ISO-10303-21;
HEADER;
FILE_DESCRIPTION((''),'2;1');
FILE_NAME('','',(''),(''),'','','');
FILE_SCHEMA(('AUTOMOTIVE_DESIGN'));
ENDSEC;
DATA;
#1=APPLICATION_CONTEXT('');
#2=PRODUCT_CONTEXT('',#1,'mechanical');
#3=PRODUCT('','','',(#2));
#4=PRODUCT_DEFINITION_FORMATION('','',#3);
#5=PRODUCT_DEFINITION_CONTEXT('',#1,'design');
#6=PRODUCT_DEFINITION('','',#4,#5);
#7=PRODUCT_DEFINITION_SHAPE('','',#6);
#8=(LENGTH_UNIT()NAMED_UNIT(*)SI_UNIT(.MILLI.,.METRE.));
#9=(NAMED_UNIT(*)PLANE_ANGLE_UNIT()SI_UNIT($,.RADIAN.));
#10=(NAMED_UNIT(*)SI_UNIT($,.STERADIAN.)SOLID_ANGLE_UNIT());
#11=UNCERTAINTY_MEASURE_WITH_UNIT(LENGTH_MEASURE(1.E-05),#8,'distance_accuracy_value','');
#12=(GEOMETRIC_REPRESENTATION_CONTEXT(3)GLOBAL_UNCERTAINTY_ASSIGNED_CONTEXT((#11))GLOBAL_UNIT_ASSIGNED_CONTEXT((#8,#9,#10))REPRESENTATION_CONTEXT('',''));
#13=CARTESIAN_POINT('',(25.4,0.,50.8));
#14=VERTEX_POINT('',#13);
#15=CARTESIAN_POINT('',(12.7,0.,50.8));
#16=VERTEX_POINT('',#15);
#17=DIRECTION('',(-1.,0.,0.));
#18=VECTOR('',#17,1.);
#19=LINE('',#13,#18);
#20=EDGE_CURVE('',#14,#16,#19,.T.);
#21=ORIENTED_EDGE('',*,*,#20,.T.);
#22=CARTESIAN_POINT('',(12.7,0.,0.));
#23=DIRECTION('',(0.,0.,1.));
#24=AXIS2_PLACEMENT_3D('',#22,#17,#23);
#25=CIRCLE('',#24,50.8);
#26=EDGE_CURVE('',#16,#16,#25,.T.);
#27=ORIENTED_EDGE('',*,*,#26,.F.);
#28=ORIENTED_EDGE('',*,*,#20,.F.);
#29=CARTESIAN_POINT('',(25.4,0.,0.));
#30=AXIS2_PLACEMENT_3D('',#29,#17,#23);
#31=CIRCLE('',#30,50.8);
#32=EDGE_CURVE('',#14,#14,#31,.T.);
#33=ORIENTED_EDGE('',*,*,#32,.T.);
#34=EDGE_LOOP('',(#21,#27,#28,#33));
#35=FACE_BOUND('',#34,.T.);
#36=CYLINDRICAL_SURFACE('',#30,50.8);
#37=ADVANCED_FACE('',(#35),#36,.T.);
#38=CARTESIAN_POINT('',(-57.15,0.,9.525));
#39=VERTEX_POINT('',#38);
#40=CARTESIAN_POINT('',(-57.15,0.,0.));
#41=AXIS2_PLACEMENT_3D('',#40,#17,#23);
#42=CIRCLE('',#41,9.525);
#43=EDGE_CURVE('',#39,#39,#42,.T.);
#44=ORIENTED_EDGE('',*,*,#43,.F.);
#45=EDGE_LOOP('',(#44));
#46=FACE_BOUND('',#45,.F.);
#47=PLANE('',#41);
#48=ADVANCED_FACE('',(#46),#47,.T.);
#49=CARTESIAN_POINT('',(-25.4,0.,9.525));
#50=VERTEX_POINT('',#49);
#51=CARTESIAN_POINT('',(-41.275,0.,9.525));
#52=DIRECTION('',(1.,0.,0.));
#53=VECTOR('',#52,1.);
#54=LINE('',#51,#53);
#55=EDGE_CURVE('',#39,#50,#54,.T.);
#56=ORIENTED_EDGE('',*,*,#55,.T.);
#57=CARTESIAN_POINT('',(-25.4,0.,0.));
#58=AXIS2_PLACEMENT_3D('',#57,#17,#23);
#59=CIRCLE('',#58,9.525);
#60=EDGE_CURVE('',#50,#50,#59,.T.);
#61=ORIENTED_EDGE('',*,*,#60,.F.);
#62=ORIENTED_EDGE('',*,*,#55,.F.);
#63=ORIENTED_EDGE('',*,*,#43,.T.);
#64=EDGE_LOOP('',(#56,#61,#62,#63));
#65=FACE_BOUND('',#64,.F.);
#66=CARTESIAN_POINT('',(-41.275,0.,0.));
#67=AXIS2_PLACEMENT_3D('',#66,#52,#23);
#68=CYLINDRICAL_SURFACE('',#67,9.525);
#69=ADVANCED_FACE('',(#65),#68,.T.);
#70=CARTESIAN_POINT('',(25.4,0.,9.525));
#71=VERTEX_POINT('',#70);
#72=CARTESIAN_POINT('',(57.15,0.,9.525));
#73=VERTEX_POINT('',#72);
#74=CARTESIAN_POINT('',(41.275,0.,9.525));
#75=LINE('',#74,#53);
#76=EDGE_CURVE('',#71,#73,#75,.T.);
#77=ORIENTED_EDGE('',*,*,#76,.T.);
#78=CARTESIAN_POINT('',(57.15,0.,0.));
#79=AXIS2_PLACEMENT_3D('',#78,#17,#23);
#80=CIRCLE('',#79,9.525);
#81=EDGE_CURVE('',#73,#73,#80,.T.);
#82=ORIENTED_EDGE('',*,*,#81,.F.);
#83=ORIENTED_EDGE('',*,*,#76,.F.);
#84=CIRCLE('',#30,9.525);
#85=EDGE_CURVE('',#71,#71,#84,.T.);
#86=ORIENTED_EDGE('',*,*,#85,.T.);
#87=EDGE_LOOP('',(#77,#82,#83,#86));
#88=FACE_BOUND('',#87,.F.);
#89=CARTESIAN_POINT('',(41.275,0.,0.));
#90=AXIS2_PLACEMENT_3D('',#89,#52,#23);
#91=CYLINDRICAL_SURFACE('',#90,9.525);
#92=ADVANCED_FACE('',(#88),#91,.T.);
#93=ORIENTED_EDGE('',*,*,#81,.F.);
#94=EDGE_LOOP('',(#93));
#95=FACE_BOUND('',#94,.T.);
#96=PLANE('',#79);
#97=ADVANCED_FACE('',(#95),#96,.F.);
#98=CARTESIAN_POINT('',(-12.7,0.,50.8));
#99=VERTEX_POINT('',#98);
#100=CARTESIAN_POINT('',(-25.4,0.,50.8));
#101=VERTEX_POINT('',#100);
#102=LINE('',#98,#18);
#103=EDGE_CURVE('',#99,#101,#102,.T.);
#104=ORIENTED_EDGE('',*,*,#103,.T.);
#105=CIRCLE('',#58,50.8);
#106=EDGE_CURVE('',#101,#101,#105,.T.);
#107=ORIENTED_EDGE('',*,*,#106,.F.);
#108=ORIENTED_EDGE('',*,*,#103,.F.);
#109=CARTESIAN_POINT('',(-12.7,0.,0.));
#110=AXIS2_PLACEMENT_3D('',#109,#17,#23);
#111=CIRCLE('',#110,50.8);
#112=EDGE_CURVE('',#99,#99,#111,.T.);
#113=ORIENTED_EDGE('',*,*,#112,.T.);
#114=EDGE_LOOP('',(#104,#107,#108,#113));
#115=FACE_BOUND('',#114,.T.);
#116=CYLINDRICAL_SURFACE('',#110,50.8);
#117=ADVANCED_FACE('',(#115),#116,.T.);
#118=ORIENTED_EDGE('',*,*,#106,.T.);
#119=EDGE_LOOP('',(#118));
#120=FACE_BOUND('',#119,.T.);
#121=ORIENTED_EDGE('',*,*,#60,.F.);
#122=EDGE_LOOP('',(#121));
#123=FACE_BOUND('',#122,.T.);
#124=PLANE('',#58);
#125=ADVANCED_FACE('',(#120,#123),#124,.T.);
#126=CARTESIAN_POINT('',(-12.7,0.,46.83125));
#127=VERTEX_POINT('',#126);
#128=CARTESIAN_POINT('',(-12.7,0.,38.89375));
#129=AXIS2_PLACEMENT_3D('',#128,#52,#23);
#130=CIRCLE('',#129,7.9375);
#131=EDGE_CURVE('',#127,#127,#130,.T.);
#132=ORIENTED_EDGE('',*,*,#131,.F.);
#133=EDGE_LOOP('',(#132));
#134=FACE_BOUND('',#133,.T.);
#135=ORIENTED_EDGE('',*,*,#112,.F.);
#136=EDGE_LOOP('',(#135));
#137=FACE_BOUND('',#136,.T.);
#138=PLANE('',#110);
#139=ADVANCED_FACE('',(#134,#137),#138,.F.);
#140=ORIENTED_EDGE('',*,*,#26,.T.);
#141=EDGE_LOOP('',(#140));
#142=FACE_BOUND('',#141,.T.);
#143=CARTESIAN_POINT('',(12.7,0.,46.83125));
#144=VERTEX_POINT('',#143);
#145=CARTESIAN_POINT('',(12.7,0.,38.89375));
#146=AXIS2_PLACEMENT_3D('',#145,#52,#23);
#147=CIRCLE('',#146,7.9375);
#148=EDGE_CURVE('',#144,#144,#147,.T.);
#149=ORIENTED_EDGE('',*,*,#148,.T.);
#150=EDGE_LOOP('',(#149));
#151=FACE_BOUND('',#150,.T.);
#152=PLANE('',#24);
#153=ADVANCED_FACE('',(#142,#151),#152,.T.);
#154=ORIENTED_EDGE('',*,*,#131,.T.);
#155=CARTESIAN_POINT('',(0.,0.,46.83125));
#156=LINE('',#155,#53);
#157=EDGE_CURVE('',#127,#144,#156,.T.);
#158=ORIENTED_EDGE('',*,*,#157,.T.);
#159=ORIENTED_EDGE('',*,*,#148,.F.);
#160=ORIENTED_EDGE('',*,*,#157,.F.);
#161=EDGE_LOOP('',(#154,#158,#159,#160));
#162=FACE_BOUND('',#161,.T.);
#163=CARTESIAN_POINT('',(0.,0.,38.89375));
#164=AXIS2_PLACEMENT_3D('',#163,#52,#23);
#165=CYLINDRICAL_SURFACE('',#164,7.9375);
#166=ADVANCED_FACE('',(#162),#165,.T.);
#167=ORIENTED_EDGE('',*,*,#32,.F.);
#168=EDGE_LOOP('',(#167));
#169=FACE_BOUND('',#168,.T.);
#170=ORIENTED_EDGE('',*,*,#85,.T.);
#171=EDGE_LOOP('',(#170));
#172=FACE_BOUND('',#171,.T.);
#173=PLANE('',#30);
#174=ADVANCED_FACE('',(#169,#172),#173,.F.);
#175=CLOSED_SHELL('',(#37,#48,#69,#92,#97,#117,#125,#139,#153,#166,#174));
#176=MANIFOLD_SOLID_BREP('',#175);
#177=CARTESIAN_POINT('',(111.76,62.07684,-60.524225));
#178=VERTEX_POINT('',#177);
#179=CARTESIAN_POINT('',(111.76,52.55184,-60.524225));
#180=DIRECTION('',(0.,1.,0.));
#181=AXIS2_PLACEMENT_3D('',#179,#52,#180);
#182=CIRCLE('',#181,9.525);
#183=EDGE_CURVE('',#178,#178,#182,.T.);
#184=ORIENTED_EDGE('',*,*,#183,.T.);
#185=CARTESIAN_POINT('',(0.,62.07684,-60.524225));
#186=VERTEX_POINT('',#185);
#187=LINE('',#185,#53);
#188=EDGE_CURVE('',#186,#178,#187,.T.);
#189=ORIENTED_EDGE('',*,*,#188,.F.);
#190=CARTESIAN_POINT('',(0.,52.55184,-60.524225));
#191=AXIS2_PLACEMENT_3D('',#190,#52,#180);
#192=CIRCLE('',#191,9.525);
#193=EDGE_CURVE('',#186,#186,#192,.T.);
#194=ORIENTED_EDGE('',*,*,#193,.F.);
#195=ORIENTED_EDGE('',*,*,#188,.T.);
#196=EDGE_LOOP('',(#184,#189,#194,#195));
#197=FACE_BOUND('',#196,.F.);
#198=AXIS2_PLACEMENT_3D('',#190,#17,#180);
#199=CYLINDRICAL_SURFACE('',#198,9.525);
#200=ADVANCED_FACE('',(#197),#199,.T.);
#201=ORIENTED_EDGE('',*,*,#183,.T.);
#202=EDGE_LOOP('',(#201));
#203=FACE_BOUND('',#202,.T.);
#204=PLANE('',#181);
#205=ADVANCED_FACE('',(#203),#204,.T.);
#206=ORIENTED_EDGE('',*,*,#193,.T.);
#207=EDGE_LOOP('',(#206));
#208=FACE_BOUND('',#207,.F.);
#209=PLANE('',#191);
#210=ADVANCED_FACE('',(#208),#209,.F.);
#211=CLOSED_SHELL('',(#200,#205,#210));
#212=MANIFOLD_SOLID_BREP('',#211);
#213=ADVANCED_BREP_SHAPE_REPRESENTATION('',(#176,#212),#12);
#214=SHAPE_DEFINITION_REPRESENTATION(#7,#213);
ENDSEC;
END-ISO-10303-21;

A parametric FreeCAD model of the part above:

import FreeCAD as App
import Part
import Sketcher
Q = App.Units.Quantity

doc = App.newDocument("Part")
body = doc.addObject("PartDesign::Body", "Body")

sketch1 = doc.addObject("Sketcher::SketchObject", "Sketch")
body.addObject(sketch1)
sketch1.AttachmentSupport = (doc.XZ_Plane, [""])
sketch1.MapMode = "FlatFace"
sketch1.addGeometry([
    Part.LineSegment(App.Vector(-57, 10, 0), App.Vector(-57, 0, 0)),
    Part.LineSegment(App.Vector(-57, 0, 0), App.Vector(-13, 0, 0)),
    Part.LineSegment(App.Vector(-13, 0, 0), App.Vector(-13, 51, 0)),
    Part.LineSegment(App.Vector(-13, 51, 0), App.Vector(-25, 51, 0)),
    Part.LineSegment(App.Vector(-25, 51, 0), App.Vector(-25, 10, 0)),
    Part.LineSegment(App.Vector(-25, 10, 0), App.Vector(-57, 10, 0)),
], False)
sketch1.addConstraint([
    Sketcher.Constraint("Coincident", 0, 2, 1, 1),
    Sketcher.Constraint("Coincident", 1, 2, 2, 1),
    Sketcher.Constraint("Coincident", 2, 2, 3, 1),
    Sketcher.Constraint("Coincident", 3, 2, 4, 1),
    Sketcher.Constraint("Coincident", 4, 2, 5, 1),
    Sketcher.Constraint("Coincident", 5, 2, 0, 1),
    Sketcher.Constraint("Vertical", 0),
    Sketcher.Constraint("Horizontal", 1),
    Sketcher.Constraint("Vertical", 2),
    Sketcher.Constraint("Horizontal", 3),
    Sketcher.Constraint("Vertical", 4),
    Sketcher.Constraint("Horizontal", 5),
    Sketcher.Constraint("PointOnObject", 0, 2, -1),
    Sketcher.Constraint("DistanceY", 2, 1, 2, 2, Q("2 in")),
    Sketcher.Constraint("DistanceX", 3, 2, 3, 1, Q("0.5 in")),
    Sketcher.Constraint("DistanceX", 3, 2, -1, 1, Q("1 in")),
    Sketcher.Constraint("DistanceX", 1, 1, 1, 2, Q("1.75 in")),
    Sketcher.Constraint("DistanceY", 0, 2, 0, 1, Q("0.375 in")),
])
revolution = doc.addObject("PartDesign::Revolution", "Revolution")
body.addObject(revolution)
revolution.Profile = sketch1
revolution.ReferenceAxis = (sketch1, ["H_Axis"])
revolution.Angle = 360
body2 = doc.addObject("PartDesign::Body", "Body001")

sketch2 = doc.addObject("Sketcher::SketchObject", "Sketch001")
body2.addObject(sketch2)
sketch2.AttachmentSupport = (doc.getObject("XZ_Plane001"), [""])
sketch2.MapMode = "FlatFace"
sketch2.addGeometry([
    Part.LineSegment(App.Vector(13, 0, 0), App.Vector(57, 0, 0)),
    Part.LineSegment(App.Vector(57, 0, 0), App.Vector(57, 10, 0)),
    Part.LineSegment(App.Vector(57, 10, 0), App.Vector(25, 10, 0)),
    Part.LineSegment(App.Vector(25, 10, 0), App.Vector(25, 51, 0)),
    Part.LineSegment(App.Vector(25, 51, 0), App.Vector(13, 51, 0)),
    Part.LineSegment(App.Vector(13, 51, 0), App.Vector(13, 0, 0)),
], False)
sketch2.addConstraint([
    Sketcher.Constraint("Coincident", 0, 2, 1, 1),
    Sketcher.Constraint("Coincident", 1, 2, 2, 1),
    Sketcher.Constraint("Coincident", 2, 2, 3, 1),
    Sketcher.Constraint("Coincident", 3, 2, 4, 1),
    Sketcher.Constraint("Coincident", 4, 2, 5, 1),
    Sketcher.Constraint("Coincident", 5, 2, 0, 1),
    Sketcher.Constraint("Horizontal", 0),
    Sketcher.Constraint("Vertical", 1),
    Sketcher.Constraint("Horizontal", 2),
    Sketcher.Constraint("Vertical", 3),
    Sketcher.Constraint("Horizontal", 4),
    Sketcher.Constraint("Vertical", 5),
    Sketcher.Constraint("PointOnObject", 0, 2, -1),
    Sketcher.Constraint("DistanceY", 5, 2, 5, 1, Q("2 in")),
    Sketcher.Constraint("DistanceX", 4, 2, 4, 1, Q("0.5 in")),
    Sketcher.Constraint("DistanceX", -1, 1, 2, 2, Q("1 in")),
    Sketcher.Constraint("DistanceX", 0, 1, 0, 2, Q("1.75 in")),
    Sketcher.Constraint("DistanceY", 1, 1, 1, 2, Q("0.375 in")),
])
revolution2 = doc.addObject("PartDesign::Revolution", "Revolution001")
body2.addObject(revolution2)
revolution2.Profile = sketch2
revolution2.ReferenceAxis = (sketch2, ["H_Axis"])
revolution2.Angle = 360
body.AllowCompound = True
doc.recompute()

boolean = doc.addObject("PartDesign::Boolean", "Boolean")
body.addObject(boolean)
boolean.Type = "Fuse"
boolean.addObjects([body2])

sketch3 = doc.addObject("Sketcher::SketchObject", "Sketch002")
body.addObject(sketch3)
sketch3.AttachmentSupport = (doc.XZ_Plane, [""])
sketch3.MapMode = "FlatFace"
sketch3.addGeometry([
    Part.LineSegment(App.Vector(-13, 47, 0), App.Vector(-13, 39, 0)),
    Part.LineSegment(App.Vector(-13, 39, 0), App.Vector(13, 39, 0)),
    Part.LineSegment(App.Vector(13, 39, 0), App.Vector(13, 47, 0)),
    Part.LineSegment(App.Vector(13, 47, 0), App.Vector(-13, 47, 0)),
], False)
sketch3.addGeometry(Part.LineSegment(App.Vector(-13, 39, 0), App.Vector(13, 39, 0)), True)
sketch3.addConstraint([
    Sketcher.Constraint("Coincident", 0, 2, 1, 1),
    Sketcher.Constraint("Coincident", 1, 2, 2, 1),
    Sketcher.Constraint("Coincident", 2, 2, 3, 1),
    Sketcher.Constraint("Coincident", 3, 2, 0, 1),
    Sketcher.Constraint("Vertical", 0),
    Sketcher.Constraint("Horizontal", 1),
    Sketcher.Constraint("Vertical", 2),
    Sketcher.Constraint("Horizontal", 3),
    Sketcher.Constraint("Horizontal", 4),
    Sketcher.Constraint("Coincident", 4, 1, 0, 2),
    Sketcher.Constraint("Vertical", 2, 2, 4, 2),
    Sketcher.Constraint("DistanceX", 1, 1, 1, 2, Q("1 in")),
    Sketcher.Constraint("DistanceX", 0, 2, -1, 1, Q("0.5 in")),
    Sketcher.Constraint("DistanceY", 0, 2, 0, 1, Q("0.3125 in")),
    Sketcher.Constraint("DistanceY", -1, 1, 0, 2, Q("1.53125 in")),
])
revolution3 = doc.addObject("PartDesign::Revolution", "Revolution002")
body.addObject(revolution3)
revolution3.Profile = sketch3
revolution3.ReferenceAxis = (sketch3, ["Axis0"])
revolution3.Angle = 360
body3 = doc.addObject("PartDesign::Body", "Body002")

sketch4 = doc.addObject("Sketcher::SketchObject", "Sketch003")
body3.addObject(sketch4)
sketch4.AttachmentSupport = (doc.getObject("YZ_Plane002"), [""])
sketch4.MapMode = "FlatFace"
sketch4.addGeometry(Part.Circle(App.Vector(53, -61, 0), App.Vector(0, 0, 1), 10), False)
sketch4.addConstraint([
    Sketcher.Constraint("Diameter", 0, Q("0.75 in")),
    Sketcher.Constraint("DistanceX", -1, 1, 0, 3, Q("52.55184 mm")),
    Sketcher.Constraint("DistanceY", 0, 3, -1, 1, Q("60.524225 mm")),
])
pad1 = doc.addObject("PartDesign::Pad", "Pad")
body3.addObject(pad1)
pad1.Profile = sketch4
pad1.Length = Q("4.4 in")

doc.recompute()
